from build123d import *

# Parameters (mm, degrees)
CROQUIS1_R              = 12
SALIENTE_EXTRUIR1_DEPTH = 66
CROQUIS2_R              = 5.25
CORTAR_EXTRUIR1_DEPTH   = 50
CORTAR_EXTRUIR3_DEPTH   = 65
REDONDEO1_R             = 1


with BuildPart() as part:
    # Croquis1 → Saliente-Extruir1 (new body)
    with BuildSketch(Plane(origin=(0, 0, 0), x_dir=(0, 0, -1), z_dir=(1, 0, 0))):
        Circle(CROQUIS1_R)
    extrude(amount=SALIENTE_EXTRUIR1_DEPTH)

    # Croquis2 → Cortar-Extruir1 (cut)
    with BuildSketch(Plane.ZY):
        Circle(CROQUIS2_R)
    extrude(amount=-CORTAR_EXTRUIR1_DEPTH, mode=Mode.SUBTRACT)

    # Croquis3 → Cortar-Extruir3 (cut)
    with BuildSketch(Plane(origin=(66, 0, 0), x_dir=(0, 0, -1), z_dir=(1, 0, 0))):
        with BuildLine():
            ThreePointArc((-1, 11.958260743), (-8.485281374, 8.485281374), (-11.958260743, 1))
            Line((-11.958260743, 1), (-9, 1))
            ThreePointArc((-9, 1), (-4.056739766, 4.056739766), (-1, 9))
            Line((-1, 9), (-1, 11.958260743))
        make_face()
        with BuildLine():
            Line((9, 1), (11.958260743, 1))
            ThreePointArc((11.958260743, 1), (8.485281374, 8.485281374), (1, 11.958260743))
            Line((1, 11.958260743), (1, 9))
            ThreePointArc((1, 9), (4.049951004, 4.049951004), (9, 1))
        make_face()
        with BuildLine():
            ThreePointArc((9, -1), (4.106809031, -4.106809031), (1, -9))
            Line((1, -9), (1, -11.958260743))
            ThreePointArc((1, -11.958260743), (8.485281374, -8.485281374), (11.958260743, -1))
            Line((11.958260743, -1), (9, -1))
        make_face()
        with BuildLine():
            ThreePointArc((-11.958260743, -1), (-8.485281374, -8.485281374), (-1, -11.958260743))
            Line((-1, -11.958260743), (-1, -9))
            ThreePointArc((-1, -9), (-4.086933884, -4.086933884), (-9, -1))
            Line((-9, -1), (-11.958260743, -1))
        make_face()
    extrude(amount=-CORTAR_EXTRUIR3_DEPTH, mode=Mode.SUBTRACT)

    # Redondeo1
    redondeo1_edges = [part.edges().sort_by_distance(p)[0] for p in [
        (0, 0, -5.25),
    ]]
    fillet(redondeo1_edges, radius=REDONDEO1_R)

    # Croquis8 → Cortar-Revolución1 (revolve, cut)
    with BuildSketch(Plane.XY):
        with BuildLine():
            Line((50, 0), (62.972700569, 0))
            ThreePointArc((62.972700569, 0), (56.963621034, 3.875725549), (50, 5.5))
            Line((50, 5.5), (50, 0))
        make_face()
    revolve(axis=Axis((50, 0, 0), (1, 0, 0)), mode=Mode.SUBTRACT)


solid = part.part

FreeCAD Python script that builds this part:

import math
import FreeCAD as App
import Part
import Sketcher
Q = App.Units.Quantity


def edges_at(feature, points):
    """Names of the edges that pass closest to the given points."""
    edges = feature.Shape.Edges
    near = lambda p: min(range(len(edges)), key=lambda i: edges[i].distToShape(Part.Vertex(*p))[0])
    return sorted({f"Edge{near(p) + 1}" for p in points})

doc = App.newDocument("Part")
body = doc.addObject("PartDesign::Body", "Body")

# Sketch on YZ plane
sketch1 = body.newObject("Sketcher::SketchObject", "Sketch")
sketch1.AttachmentSupport = (doc.getObject("YZ_Plane"), [""])
sketch1.MapMode = "FlatFace"
sketch1.addGeometry(Part.Circle(App.Vector(0, 0, 0), App.Vector(0, 0, 1), 12), False)
sketch1.addConstraint(Sketcher.Constraint("Coincident", 0, 3, -1, 1))
sketch1.addConstraint(Sketcher.Constraint("Diameter", 0, Q("24 mm")))
pad1 = body.newObject("PartDesign::Pad", "Pad")
pad1.Profile = sketch1
pad1.Length = 66

# Sketch on YZ plane
sketch2 = body.newObject("Sketcher::SketchObject", "Sketch001")
sketch2.AttachmentSupport = (doc.getObject("YZ_Plane"), [""])
sketch2.MapMode = "FlatFace"
sketch2.addGeometry(Part.Circle(App.Vector(0, 0, 0), App.Vector(0, 0, 1), 5), False)
sketch2.addConstraint(Sketcher.Constraint("Coincident", 0, 3, -1, 1))
sketch2.addConstraint(Sketcher.Constraint("Diameter", 0, Q("10.5 mm")))
pocket1 = body.newObject("PartDesign::Pocket", "Pocket")
pocket1.Profile = sketch2
pocket1.Length = 50
pocket1.Reversed = True

# Sketch on YZ plane
sketch3 = body.newObject("Sketcher::SketchObject", "Sketch002")
sketch3.AttachmentSupport = (doc.getObject("YZ_Plane"), [""])
sketch3.MapMode = "FlatFace"
sketch3.AttachmentOffset = App.Placement(App.Vector(0, 0, 66), App.Rotation())
sketch3.addGeometry(Part.ArcOfCircle(Part.Circle(App.Vector(0, 0, 0), App.Vector(0, 0, 1), 12), math.radians(5), math.radians(85)), False)
sketch3.addGeometry(Part.LineSegment(App.Vector(1, 12, 0), App.Vector(1, 9, 0)), False)
sketch3.addGeometry(Part.ArcOfCircle(Part.Circle(App.Vector(13, 13, 0), App.Vector(0, 0, 1), 12.7), math.radians(-162), math.radians(-108)), False)
sketch3.addGeometry(Part.LineSegment(App.Vector(9, 1, 0), App.Vector(12, 1, 0)), False)
sketch3.addGeometry(Part.LineSegment(App.Vector(1, -9, 0), App.Vector(1, -12, 0)), False)
sketch3.addGeometry(Part.ArcOfCircle(Part.Circle(App.Vector(0, 0, 0), App.Vector(0, 0, 1), 12), math.radians(-85), math.radians(-5)), False)
sketch3.addGeometry(Part.LineSegment(App.Vector(12, -1, 0), App.Vector(9, -1, 0)), False)
sketch3.addGeometry(Part.ArcOfCircle(Part.Circle(App.Vector(12.9, -12.9, 0), App.Vector(0, 0, 1), 12.6), math.radians(108), math.radians(162)), False)
sketch3.addGeometry(Part.ArcOfCircle(Part.Circle(App.Vector(-13.5, -13.5, 0), App.Vector(0, 0, 1), 13.3), math.radians(20), math.radians(70)), False)
sketch3.addGeometry(Part.LineSegment(App.Vector(-9, -1, 0), App.Vector(-12, -1, 0)), False)
sketch3.addGeometry(Part.ArcOfCircle(Part.Circle(App.Vector(0, 0, 0), App.Vector(0, 0, 1), 12), math.radians(-175), math.radians(-95)), False)
sketch3.addGeometry(Part.LineSegment(App.Vector(-1, -12, 0), App.Vector(-1, -9, 0)), False)
sketch3.addGeometry(Part.ArcOfCircle(Part.Circle(App.Vector(0, 0, 0), App.Vector(0, 0, 1), 12), math.radians(95), math.radians(175)), False)
sketch3.addGeometry(Part.LineSegment(App.Vector(-12, 1, 0), App.Vector(-9, 1, 0)), False)
sketch3.addGeometry(Part.ArcOfCircle(Part.Circle(App.Vector(-13.3, 13.3, 0), App.Vector(0, 0, 1), 13), math.radians(-71), math.radians(-19)), False)
sketch3.addGeometry(Part.LineSegment(App.Vector(-1, 9, 0), App.Vector(-1, 12, 0)), False)
sketch3.addConstraint(Sketcher.Constraint("Coincident", 0, 2, 1, 1))
sketch3.addConstraint(Sketcher.Constraint("Coincident", 1, 2, 2, 1))
sketch3.addConstraint(Sketcher.Constraint("Coincident", 2, 2, 3, 1))
sketch3.addConstraint(Sketcher.Constraint("Coincident", 3, 2, 0, 1))
sketch3.addConstraint(Sketcher.Constraint("Coincident", 4, 2, 5, 1))
sketch3.addConstraint(Sketcher.Constraint("Coincident", 5, 2, 6, 1))
sketch3.addConstraint(Sketcher.Constraint("Coincident", 6, 2, 7, 1))
sketch3.addConstraint(Sketcher.Constraint("Coincident", 7, 2, 4, 1))
sketch3.addConstraint(Sketcher.Constraint("Coincident", 8, 2, 9, 1))
sketch3.addConstraint(Sketcher.Constraint("Coincident", 9, 2, 10, 1))
sketch3.addConstraint(Sketcher.Constraint("Coincident", 10, 2, 11, 1))
sketch3.addConstraint(Sketcher.Constraint("Coincident", 11, 2, 8, 1))
sketch3.addConstraint(Sketcher.Constraint("Coincident", 12, 2, 13, 1))
sketch3.addConstraint(Sketcher.Constraint("Coincident", 13, 2, 14, 1))
sketch3.addConstraint(Sketcher.Constraint("Coincident", 14, 2, 15, 1))
sketch3.addConstraint(Sketcher.Constraint("Coincident", 15, 2, 12, 1))
sketch3.addConstraint(Sketcher.Constraint("Vertical", 1))
sketch3.addConstraint(Sketcher.Constraint("Horizontal", 3))
sketch3.addConstraint(Sketcher.Constraint("Vertical", 4))
sketch3.addConstraint(Sketcher.Constraint("Horizontal", 6))
sketch3.addConstraint(Sketcher.Constraint("Horizontal", 9))
sketch3.addConstraint(Sketcher.Constraint("Vertical", 11))
sketch3.addConstraint(Sketcher.Constraint("Horizontal", 13))
sketch3.addConstraint(Sketcher.Constraint("Vertical", 15))
sketch3.addConstraint(Sketcher.Constraint("Coincident", 0, 3, -1, 1))
sketch3.addConstraint(Sketcher.Constraint("Coincident", 5, 3, -1, 1))
sketch3.addConstraint(Sketcher.Constraint("Coincident", 10, 3, -1, 1))
sketch3.addConstraint(Sketcher.Constraint("Coincident", 12, 3, -1, 1))
sketch3.addConstraint(Sketcher.Constraint("Equal", 0, 5))
sketch3.addConstraint(Sketcher.Constraint("Equal", 5, 10))
sketch3.addConstraint(Sketcher.Constraint("Equal", 10, 12))
sketch3.addConstraint(Sketcher.Constraint("Symmetric", 2, 2, 8, 2, -1, 1))
sketch3.addConstraint(Sketcher.Constraint("Symmetric", 1, 2, 11, 2, -1, 1))
sketch3.addConstraint(Sketcher.Constraint("Symmetric", 6, 2, 13, 2, -1, 1))
sketch3.addConstraint(Sketcher.Constraint("Symmetric", 7, 2, 14, 2, -1, 1))
sketch3.addConstraint(Sketcher.Constraint("Symmetric", 6, 2, 8, 2, -2))
sketch3.addConstraint(Sketcher.Constraint("Symmetric", 7, 2, 11, 2, -2))
sketch3.addConstraint(Sketcher.Constraint("Equal", 13, 1))
sketch3.addConstraint(Sketcher.Constraint("Radius", 0, Q("12 mm")))
sketch3.addConstraint(Sketcher.Constraint("DistanceX", -1, 1, 0, 2, Q("1 mm")))
sketch3.addConstraint(Sketcher.Constraint("DistanceY", -1, 1, 1, 2, Q("9 mm")))
sketch3.addConstraint(Sketcher.Constraint("DistanceY", -1, 1, 2, 2, Q("1 mm")))
sketch3.addConstraint(Sketcher.Constraint("Radius", 8, Q("13.298199 mm")))
sketch3.addConstraint(Sketcher.Constraint("Radius", 7, Q("12.580339 mm")))
sketch3.addConstraint(Sketcher.Constraint("Radius", 2, Q("12.661246 mm")))
sketch3.addConstraint(Sketcher.Constraint("Radius", 14, Q("13.036533 mm")))
pocket2 = body.newObject("PartDesign::Pocket", "Pocket001")
pocket2.Profile = sketch3
pocket2.Length = 65
doc.recompute()

fillet = body.newObject("PartDesign::Fillet", "Fillet")
fillet.Base = (pocket2, edges_at(pocket2, [(0, 0, -5.25)]))
fillet.Radius = 1

# Sketch on XY plane
sketch4 = body.newObject("Sketcher::SketchObject", "Sketch003")
sketch4.AttachmentSupport = (doc.getObject("XY_Plane"), [""])
sketch4.MapMode = "FlatFace"
sketch4.addGeometry(Part.LineSegment(App.Vector(50, 0, 0), App.Vector(63, 0, 0)), False)
sketch4.addGeometry(Part.ArcOfCircle(Part.Circle(App.Vector(49, -15, 0), App.Vector(0, 0, 1), 21), math.radians(47), math.radians(87)), False)
sketch4.addGeometry(Part.LineSegment(App.Vector(50, 6, 0), App.Vector(50, 0, 0)), False)
sketch4.addConstraint(Sketcher.Constraint("Coincident", 0, 2, 1, 1))
sketch4.addConstraint(Sketcher.Constraint("Coincident", 1, 2, 2, 1))
sketch4.addConstraint(Sketcher.Constraint("Coincident", 2, 2, 0, 1))
sketch4.addConstraint(Sketcher.Constraint("Horizontal", 0))
sketch4.addConstraint(Sketcher.Constraint("Vertical", 2))
sketch4.addConstraint(Sketcher.Constraint("PointOnObject", 0, 2, -1))
sketch4.addConstraint(Sketcher.Constraint("DistanceY", 2, 2, 2, 1, Q("5.5 mm")))
sketch4.addConstraint(Sketcher.Constraint("DistanceX", -1, 1, 1, 2, Q("50 mm")))
sketch4.addConstraint(Sketcher.Constraint("Radius", 1, Q("20.908411 mm")))
sketch4.addConstraint(Sketcher.Constraint("DistanceX", 0, 1, 0, 2, Q("12.972701 mm")))
groove = body.newObject("PartDesign::Groove", "Groove")
groove.Profile = sketch4
groove.ReferenceAxis = (sketch4, ["H_Axis"])
groove.Angle = 360

doc.recompute()
